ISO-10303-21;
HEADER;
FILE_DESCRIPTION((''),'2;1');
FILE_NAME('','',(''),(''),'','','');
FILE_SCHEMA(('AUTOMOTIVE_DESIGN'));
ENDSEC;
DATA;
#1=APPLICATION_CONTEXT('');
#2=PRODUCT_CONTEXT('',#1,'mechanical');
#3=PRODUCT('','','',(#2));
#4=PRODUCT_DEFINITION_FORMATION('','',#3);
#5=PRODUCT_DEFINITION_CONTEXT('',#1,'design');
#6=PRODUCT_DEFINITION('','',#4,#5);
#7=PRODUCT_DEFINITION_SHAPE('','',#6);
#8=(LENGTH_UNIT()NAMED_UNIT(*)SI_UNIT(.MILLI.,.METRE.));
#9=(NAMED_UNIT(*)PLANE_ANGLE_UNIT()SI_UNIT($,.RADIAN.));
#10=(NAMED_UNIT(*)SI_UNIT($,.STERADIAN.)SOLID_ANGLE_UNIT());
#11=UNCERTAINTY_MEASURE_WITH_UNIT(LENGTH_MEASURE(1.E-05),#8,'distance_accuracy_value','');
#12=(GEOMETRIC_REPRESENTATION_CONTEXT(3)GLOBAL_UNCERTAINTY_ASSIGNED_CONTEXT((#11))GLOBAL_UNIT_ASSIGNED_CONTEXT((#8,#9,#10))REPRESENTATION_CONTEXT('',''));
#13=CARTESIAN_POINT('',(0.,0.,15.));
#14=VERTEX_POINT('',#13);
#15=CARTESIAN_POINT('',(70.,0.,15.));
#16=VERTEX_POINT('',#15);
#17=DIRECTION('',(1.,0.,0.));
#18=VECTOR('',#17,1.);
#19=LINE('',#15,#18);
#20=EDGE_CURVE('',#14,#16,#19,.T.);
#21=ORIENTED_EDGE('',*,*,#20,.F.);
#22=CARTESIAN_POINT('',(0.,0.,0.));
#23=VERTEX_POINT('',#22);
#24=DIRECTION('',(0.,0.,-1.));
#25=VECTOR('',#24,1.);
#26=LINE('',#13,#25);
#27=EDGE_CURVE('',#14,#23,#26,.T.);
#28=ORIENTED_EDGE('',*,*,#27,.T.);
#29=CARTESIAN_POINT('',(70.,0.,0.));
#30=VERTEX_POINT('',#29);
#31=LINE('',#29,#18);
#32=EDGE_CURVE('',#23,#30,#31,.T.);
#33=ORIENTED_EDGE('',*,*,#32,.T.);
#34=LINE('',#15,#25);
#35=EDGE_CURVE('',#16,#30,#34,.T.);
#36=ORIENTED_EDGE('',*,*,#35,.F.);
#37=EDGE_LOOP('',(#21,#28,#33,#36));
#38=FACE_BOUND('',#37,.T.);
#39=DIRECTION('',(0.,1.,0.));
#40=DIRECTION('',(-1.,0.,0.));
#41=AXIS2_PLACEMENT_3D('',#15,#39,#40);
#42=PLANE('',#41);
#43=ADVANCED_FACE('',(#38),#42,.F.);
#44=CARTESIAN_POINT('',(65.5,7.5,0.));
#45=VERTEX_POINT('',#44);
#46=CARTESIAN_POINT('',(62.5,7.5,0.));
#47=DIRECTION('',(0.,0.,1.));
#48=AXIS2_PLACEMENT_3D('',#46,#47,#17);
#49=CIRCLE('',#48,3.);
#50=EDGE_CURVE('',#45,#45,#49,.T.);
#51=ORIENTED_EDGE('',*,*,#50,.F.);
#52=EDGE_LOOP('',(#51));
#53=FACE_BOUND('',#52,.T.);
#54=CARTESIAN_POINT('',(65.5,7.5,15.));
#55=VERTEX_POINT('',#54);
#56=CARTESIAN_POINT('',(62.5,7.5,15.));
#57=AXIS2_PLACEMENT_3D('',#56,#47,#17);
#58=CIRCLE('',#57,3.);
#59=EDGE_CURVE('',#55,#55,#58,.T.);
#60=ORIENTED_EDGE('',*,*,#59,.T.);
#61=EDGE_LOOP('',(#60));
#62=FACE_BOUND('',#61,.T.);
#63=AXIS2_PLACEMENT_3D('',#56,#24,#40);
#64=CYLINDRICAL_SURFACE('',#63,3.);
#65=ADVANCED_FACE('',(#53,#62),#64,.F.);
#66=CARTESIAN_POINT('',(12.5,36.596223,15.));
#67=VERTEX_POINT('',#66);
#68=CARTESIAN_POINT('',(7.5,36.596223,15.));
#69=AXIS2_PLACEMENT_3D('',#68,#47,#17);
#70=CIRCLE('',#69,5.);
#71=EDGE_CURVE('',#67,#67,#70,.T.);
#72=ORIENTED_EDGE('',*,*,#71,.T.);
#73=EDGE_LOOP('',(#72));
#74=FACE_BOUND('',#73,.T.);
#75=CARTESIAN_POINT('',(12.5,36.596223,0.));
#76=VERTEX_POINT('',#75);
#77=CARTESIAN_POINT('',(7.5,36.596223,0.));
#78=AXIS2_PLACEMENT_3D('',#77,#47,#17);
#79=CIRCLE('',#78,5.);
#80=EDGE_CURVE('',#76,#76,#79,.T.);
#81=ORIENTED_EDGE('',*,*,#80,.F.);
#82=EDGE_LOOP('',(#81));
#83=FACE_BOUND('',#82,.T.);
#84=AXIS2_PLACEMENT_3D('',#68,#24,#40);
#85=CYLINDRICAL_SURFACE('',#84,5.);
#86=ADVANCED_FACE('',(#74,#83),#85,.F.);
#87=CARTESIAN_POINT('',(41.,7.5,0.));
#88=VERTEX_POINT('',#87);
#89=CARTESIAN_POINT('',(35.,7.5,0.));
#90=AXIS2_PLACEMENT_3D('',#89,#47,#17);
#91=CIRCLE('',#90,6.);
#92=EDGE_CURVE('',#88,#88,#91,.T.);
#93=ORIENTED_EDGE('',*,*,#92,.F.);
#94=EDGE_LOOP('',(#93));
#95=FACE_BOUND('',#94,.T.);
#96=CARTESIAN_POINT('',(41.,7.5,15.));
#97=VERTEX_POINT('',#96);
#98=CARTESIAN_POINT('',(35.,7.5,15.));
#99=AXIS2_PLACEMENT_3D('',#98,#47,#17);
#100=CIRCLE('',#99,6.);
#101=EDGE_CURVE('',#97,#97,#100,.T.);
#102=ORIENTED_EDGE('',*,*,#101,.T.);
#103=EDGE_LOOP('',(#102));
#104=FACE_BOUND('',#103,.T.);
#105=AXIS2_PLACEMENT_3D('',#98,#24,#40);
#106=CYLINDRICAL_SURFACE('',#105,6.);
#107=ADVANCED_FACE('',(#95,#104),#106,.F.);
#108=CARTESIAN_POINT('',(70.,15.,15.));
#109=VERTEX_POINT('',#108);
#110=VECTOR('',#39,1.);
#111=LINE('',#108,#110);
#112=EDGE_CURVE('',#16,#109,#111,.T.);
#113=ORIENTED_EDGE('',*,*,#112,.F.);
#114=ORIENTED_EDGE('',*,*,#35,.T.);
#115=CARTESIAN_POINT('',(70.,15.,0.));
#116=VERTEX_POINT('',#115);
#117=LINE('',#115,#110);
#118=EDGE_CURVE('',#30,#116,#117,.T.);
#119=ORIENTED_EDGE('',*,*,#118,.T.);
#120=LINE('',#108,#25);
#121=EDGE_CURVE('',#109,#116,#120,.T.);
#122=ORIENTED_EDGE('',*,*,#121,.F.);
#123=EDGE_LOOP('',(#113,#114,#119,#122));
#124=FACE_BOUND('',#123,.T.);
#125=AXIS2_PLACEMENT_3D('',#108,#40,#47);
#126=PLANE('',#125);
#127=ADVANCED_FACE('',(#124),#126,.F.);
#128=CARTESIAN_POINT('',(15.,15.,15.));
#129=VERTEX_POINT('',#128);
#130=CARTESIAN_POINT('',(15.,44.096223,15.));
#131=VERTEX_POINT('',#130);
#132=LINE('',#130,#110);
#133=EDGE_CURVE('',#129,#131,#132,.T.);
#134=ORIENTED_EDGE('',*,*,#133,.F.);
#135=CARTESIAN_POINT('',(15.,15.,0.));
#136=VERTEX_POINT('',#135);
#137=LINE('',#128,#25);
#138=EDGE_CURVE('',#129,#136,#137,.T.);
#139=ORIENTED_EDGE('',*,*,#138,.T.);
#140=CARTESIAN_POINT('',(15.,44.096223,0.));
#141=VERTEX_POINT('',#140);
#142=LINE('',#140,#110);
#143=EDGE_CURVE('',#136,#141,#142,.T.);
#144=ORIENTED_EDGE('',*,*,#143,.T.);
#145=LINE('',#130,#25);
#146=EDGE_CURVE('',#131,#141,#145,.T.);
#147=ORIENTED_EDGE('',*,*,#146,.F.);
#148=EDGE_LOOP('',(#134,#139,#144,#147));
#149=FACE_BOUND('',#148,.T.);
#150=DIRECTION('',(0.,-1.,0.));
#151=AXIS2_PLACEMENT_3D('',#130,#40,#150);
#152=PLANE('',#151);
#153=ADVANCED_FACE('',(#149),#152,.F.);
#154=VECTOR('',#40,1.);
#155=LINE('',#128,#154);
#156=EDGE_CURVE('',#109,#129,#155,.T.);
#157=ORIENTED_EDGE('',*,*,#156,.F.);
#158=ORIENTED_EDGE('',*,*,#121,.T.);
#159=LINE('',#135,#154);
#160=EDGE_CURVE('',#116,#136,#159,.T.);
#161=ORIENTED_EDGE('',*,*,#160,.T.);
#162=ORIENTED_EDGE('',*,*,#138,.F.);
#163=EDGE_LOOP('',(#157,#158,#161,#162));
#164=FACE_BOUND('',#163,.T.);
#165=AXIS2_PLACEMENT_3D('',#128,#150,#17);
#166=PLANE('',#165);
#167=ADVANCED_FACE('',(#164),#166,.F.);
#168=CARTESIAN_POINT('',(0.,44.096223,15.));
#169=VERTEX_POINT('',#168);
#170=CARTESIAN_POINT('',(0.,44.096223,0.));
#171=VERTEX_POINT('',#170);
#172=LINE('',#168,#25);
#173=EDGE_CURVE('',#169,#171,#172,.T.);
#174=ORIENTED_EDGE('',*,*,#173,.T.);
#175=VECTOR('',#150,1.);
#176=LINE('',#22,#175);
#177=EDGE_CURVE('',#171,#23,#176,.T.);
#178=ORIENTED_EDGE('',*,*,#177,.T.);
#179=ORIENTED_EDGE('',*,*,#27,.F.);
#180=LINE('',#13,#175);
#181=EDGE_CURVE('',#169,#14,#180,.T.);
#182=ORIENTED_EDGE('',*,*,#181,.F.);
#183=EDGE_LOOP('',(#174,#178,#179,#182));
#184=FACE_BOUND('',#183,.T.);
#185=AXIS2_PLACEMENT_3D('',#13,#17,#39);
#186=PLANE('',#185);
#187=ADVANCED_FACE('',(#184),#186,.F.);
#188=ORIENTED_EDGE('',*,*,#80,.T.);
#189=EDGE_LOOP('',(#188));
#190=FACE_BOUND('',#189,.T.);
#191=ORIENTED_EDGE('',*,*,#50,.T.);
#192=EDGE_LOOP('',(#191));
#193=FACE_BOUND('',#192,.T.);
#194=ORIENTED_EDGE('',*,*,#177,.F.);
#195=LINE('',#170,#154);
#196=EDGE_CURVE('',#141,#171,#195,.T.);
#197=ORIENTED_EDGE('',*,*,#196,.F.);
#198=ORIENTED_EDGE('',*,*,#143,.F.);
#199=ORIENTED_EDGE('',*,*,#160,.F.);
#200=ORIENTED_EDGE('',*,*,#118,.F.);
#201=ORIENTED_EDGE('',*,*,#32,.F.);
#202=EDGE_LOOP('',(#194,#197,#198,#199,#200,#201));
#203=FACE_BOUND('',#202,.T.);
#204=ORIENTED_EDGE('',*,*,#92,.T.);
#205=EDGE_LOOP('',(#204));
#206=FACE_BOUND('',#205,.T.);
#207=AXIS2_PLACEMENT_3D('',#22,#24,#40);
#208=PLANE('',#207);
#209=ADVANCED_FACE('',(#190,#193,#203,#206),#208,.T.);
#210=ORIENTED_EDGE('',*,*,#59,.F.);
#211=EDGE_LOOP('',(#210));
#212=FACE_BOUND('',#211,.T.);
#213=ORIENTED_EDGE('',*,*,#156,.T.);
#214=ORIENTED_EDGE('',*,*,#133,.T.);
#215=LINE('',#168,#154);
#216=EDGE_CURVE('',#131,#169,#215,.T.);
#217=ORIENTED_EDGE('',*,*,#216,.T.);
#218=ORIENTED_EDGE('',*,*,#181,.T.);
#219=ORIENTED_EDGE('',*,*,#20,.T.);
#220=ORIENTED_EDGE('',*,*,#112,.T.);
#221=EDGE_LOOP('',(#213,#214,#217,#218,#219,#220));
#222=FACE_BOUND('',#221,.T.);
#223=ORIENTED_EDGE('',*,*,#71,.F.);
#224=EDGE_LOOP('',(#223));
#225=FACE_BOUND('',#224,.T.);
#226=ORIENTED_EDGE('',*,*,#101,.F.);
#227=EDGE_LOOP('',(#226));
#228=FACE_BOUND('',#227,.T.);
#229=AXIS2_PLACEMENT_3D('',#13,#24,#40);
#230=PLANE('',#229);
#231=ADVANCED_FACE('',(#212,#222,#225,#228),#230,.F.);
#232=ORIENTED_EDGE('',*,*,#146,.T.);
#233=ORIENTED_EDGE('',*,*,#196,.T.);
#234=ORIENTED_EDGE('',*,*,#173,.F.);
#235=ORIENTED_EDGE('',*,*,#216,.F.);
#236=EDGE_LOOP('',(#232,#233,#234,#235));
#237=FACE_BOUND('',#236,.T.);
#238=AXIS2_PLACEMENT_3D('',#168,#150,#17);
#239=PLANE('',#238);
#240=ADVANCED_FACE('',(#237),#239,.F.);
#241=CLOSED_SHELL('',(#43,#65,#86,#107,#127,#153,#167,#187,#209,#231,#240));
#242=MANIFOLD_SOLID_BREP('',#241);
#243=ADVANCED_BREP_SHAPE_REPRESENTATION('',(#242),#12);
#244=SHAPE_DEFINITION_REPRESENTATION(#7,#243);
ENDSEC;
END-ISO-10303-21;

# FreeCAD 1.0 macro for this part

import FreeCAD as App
import Part
import Sketcher
from FreeCAD import Vector

doc = App.newDocument("Part")
params = doc.addObject("Spreadsheet::Sheet", "Params")
for row, (alias, value) in enumerate([
    ("sketch1_diameter", "6 mm"),
    ("sketch1_diameter2", "12 mm"),
    ("sketch1_diameter3", "10 mm"),
    ("sketch1_width", "70 mm"),
    ("sketch1_width2", "55 mm"),
    ("pad1_length", "15 mm"),
], start=1):
    params.set(f"A{row}", alias)
    params.set(f"B{row}", "=" + value)
    params.setAlias(f"B{row}", alias)

body = doc.addObject("PartDesign::Body", "Body")

# Sketch on XY plane
sketch1 = doc.addObject("Sketcher::SketchObject", "Sketch")
body.addObject(sketch1)
sketch1.AttachmentSupport = (doc.XY_Plane, [""])
sketch1.MapMode = "FlatFace"
sketch1.addGeometry([
    Part.LineSegment(Vector(0, 44.1, 0), Vector(0, 0, 0)),  # 0
    Part.LineSegment(Vector(0, 0, 0), Vector(70, 0, 0)),  # 1
    Part.LineSegment(Vector(70, 0, 0), Vector(70, 15, 0)),  # 2
    Part.LineSegment(Vector(70, 15, 0), Vector(15, 15, 0)),  # 3
    Part.LineSegment(Vector(15, 15, 0), Vector(15, 44.1, 0)),  # 4
    Part.LineSegment(Vector(15, 44.1, 0), Vector(0, 44.1, 0)),  # 5
    Part.Circle(Vector(62.5, 7.5, 0), Vector(0, 0, 1), 3),  # 6
    Part.Circle(Vector(35, 7.5, 0), Vector(0, 0, 1), 6),  # 7
    Part.Circle(Vector(7.5, 36.6, 0), Vector(0, 0, 1), 5),  # 8
], False)
sketch1.addConstraint([
    Sketcher.Constraint("Coincident", 0, 2, 1, 1),
    Sketcher.Constraint("Coincident", 1, 2, 2, 1),
    Sketcher.Constraint("Coincident", 2, 2, 3, 1),
    Sketcher.Constraint("Coincident", 3, 2, 4, 1),
    Sketcher.Constraint("Coincident", 4, 2, 5, 1),
    Sketcher.Constraint("Coincident", 5, 2, 0, 1),
    Sketcher.Constraint("Vertical", 0),
    Sketcher.Constraint("Horizontal", 1),
    Sketcher.Constraint("Vertical", 2),
    Sketcher.Constraint("Horizontal", 3),
    Sketcher.Constraint("Vertical", 4),
    Sketcher.Constraint("Horizontal", 5),
    Sketcher.Constraint("Coincident", 0, 2, -1, 1),
    Sketcher.Constraint("Horizontal", 6, 3, 7, 3),
    Sketcher.Constraint("Equal", 5, 2),
    Sketcher.Constraint("Diameter", 6, 6.0),
    Sketcher.Constraint("Diameter", 7, 12.0),
    Sketcher.Constraint("Diameter", 8, 10.0),
    Sketcher.Constraint("DistanceX", 1, 1, 1, 2, 70.0),
    Sketcher.Constraint("DistanceX", 3, 2, 3, 1, 55.0),
    Sketcher.Constraint("DistanceX", -1, 1, 7, 3, 35.0),
    Sketcher.Constraint("DistanceX", 8, 3, 6, 3, 55.0),
    Sketcher.Constraint("DistanceX", -1, 1, 6, 3, 62.5),
    Sketcher.Constraint("DistanceY", -1, 1, 6, 3, 7.5),
    Sketcher.Constraint("DistanceY", 8, 3, 4, 2, 7.5),
    Sketcher.Constraint("DistanceY", 0, 2, 0, 1, 44.096223),
])
sketch1.setExpression("Constraints[15]", "Params.sketch1_diameter")
sketch1.setExpression("Constraints[16]", "Params.sketch1_diameter2")
sketch1.setExpression("Constraints[17]", "Params.sketch1_diameter3")
sketch1.setExpression("Constraints[18]", "Params.sketch1_width")
sketch1.setExpression("Constraints[19]", "Params.sketch1_width2")
pad1 = doc.addObject("PartDesign::Pad", "Pad")
body.addObject(pad1)
pad1.Profile = sketch1
pad1.setExpression("Length", "Params.pad1_length")

doc.recompute()
